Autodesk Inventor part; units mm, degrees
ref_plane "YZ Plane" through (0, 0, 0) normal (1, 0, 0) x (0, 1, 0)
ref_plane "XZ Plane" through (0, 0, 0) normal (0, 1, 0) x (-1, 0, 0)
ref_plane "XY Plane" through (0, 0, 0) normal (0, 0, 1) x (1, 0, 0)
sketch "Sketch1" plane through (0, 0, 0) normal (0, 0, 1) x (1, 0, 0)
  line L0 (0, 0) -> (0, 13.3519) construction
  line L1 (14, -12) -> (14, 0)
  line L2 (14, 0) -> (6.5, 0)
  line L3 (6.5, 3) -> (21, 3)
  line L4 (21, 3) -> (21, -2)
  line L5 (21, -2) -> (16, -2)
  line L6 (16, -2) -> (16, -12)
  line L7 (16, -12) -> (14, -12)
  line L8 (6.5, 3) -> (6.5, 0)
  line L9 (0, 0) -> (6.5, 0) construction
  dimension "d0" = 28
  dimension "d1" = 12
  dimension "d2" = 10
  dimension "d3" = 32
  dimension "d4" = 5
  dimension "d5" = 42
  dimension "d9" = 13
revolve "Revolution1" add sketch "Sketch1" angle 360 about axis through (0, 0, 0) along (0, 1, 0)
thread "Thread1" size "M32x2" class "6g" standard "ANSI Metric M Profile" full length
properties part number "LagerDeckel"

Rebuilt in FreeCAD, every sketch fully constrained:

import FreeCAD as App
import Part
import Sketcher
from FreeCAD import Vector
Q = App.Units.Quantity

doc = App.newDocument("Part")
body = doc.addObject("PartDesign::Body", "Body")

# Sketch on XY plane
sketch1 = body.newObject("Sketcher::SketchObject", "Sketch")
sketch1.AttachmentSupport = (doc.getObject("XY_Plane"), [""])
sketch1.MapMode = "FlatFace"
sketch1.addGeometry(Part.LineSegment(Vector(14, 0, 0), Vector(14, -12, 0)), False)
sketch1.addGeometry(Part.LineSegment(Vector(14, -12, 0), Vector(16, -12, 0)), False)
sketch1.addGeometry(Part.LineSegment(Vector(16, -12, 0), Vector(16, -2, 0)), False)
sketch1.addGeometry(Part.LineSegment(Vector(16, -2, 0), Vector(21, -2, 0)), False)
sketch1.addGeometry(Part.LineSegment(Vector(21, -2, 0), Vector(21, 3, 0)), False)
sketch1.addGeometry(Part.LineSegment(Vector(21, 3, 0), Vector(6.5, 3, 0)), False)
sketch1.addGeometry(Part.LineSegment(Vector(6.5, 3, 0), Vector(6.5, 0, 0)), False)
sketch1.addGeometry(Part.LineSegment(Vector(6.5, 0, 0), Vector(14, 0, 0)), False)
sketch1.addConstraint(Sketcher.Constraint("Coincident", 0, 2, 1, 1))
sketch1.addConstraint(Sketcher.Constraint("Coincident", 1, 2, 2, 1))
sketch1.addConstraint(Sketcher.Constraint("Coincident", 2, 2, 3, 1))
sketch1.addConstraint(Sketcher.Constraint("Coincident", 3, 2, 4, 1))
sketch1.addConstraint(Sketcher.Constraint("Coincident", 4, 2, 5, 1))
sketch1.addConstraint(Sketcher.Constraint("Coincident", 5, 2, 6, 1))
sketch1.addConstraint(Sketcher.Constraint("Coincident", 6, 2, 7, 1))
sketch1.addConstraint(Sketcher.Constraint("Coincident", 7, 2, 0, 1))
sketch1.addConstraint(Sketcher.Constraint("Vertical", 0))
sketch1.addConstraint(Sketcher.Constraint("Horizontal", 1))
sketch1.addConstraint(Sketcher.Constraint("Vertical", 2))
sketch1.addConstraint(Sketcher.Constraint("Horizontal", 3))
sketch1.addConstraint(Sketcher.Constraint("Vertical", 4))
sketch1.addConstraint(Sketcher.Constraint("Horizontal", 5))
sketch1.addConstraint(Sketcher.Constraint("Vertical", 6))
sketch1.addConstraint(Sketcher.Constraint("Horizontal", 7))
sketch1.addConstraint(Sketcher.Constraint("PointOnObject", 6, 2, -1))
sketch1.addConstraint(Sketcher.Constraint("Equal", 3, 4))
sketch1.addConstraint(Sketcher.Constraint("DistanceX", 3, 1, 3, 2, Q("5 mm")))
sketch1.addConstraint(Sketcher.Constraint("DistanceY", 0, 2, 0, 1, Q("12 mm")))
sketch1.addConstraint(Sketcher.Constraint("DistanceY", 2, 1, 2, 2, Q("10 mm")))
sketch1.addConstraint(Sketcher.Constraint("DistanceX", 1, 1, 1, 2, Q("2 mm")))
sketch1.addConstraint(Sketcher.Constraint("DistanceX", 5, 2, 5, 1, Q("14.5 mm")))
sketch1.addConstraint(Sketcher.Constraint("DistanceX", -1, 1, 0, 2, Q("14 mm")))
revolution = body.newObject("PartDesign::Revolution", "Revolution")
revolution.Profile = sketch1
revolution.ReferenceAxis = (sketch1, ["V_Axis"])
revolution.Angle = 360

doc.recompute()
